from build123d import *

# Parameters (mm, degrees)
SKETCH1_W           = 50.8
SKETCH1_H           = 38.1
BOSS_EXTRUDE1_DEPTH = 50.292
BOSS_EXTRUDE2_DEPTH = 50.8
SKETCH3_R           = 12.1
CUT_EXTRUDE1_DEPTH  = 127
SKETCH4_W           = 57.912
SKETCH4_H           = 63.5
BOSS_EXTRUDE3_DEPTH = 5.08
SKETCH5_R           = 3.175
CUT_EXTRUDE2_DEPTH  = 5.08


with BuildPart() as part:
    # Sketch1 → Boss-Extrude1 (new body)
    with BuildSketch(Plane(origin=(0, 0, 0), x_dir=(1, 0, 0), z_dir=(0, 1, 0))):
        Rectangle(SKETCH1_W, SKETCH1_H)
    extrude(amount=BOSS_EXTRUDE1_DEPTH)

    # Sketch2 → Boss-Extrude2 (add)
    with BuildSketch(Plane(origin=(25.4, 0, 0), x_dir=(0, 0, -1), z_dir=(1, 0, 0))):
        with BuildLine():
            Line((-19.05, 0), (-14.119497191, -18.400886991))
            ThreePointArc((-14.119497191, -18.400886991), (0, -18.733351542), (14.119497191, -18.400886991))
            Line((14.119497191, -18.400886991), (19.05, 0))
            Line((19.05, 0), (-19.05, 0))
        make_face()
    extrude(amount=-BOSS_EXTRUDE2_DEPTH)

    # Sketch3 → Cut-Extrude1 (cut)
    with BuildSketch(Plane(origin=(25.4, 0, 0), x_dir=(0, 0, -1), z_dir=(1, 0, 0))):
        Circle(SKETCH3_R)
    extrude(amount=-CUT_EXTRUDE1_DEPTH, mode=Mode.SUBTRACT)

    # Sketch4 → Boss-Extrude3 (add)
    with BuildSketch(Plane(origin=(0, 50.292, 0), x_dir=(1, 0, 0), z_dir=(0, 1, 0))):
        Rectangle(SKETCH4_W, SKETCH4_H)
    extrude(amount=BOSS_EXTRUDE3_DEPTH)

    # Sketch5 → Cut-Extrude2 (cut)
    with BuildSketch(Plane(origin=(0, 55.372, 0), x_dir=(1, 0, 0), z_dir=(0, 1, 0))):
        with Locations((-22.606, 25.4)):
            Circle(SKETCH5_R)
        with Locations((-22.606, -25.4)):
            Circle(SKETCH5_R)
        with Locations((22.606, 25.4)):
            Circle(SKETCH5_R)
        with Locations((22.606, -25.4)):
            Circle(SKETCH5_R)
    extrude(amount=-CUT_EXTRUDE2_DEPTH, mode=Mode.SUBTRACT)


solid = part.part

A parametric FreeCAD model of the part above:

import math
import FreeCAD as App
import Part
import Sketcher

V = App.Vector
Q = App.Units.Quantity


def add_polygon(sketch, points):
    """Adds a closed chain of lines whose ends are joined by coincident constraints."""
    first, n = sketch.GeometryCount, len(points)
    for a, b in zip(points, points[1:] + points[:1]):
        sketch.addGeometry(Part.LineSegment(App.Vector(*a, 0), App.Vector(*b, 0)), False)
    for i in range(n):
        sketch.addConstraint(Sketcher.Constraint("Coincident", first + i, 2, first + (i + 1) % n, 1))

doc = App.newDocument("Part")
body = doc.addObject("PartDesign::Body", "Body")

# Sketch on XZ plane
sketch1 = body.newObject("Sketcher::SketchObject", "Sketch")
sketch1.AttachmentSupport = (doc.getObject("XZ_Plane"), [""])
sketch1.MapMode = "FlatFace"
add_polygon(sketch1, [(-25, -19), (-25, 19), (25, 19), (25, -19)])  # lines 0-3
sketch1.addConstraint([
    Sketcher.Constraint("Vertical", 0),
    Sketcher.Constraint("Horizontal", 1),
    Sketcher.Constraint("Vertical", 2),
    Sketcher.Constraint("Horizontal", 3),
    Sketcher.Constraint("Symmetric", 0, 2, 2, 2, -1, 1),
    Sketcher.Constraint("DistanceX", 1, 1, 1, 2, Q("2 in")),
    Sketcher.Constraint("DistanceY", 0, 1, 0, 2, Q("1.5 in")),
])
pad1 = body.newObject("PartDesign::Pad", "Pad")
pad1.Profile = sketch1
pad1.Length = Q("1.98 in")
pad1.Reversed = True

# Sketch on YZ plane
sketch2 = body.newObject("Sketcher::SketchObject", "Sketch001")
sketch2.AttachmentSupport = (doc.getObject("YZ_Plane"), [""])
sketch2.MapMode = "FlatFace"
sketch2.AttachmentOffset = App.Placement(V(0, 0, 1 * 25.4), App.Rotation())
sketch2.addGeometry([
    Part.LineSegment(V(0, 19, 0), V(-18, 14, 0)),
    Part.ArcOfCircle(Part.Circle(V(281, 0, 0), V(0, 0, 1), 300), math.radians(177.3), math.radians(182.7)),
    Part.LineSegment(V(-18, -14, 0), V(0, -19, 0)),
    Part.LineSegment(V(0, -19, 0), V(0, 19, 0)),
], False)
sketch2.addConstraint([
    Sketcher.Constraint("Coincident", 0, 2, 1, 1),
    Sketcher.Constraint("Coincident", 1, 2, 2, 1),
    Sketcher.Constraint("Coincident", 2, 2, 3, 1),
    Sketcher.Constraint("Coincident", 3, 2, 0, 1),
    Sketcher.Constraint("Vertical", 3),
    Sketcher.Constraint("Symmetric", 2, 2, 3, 2, -1, 1),
    Sketcher.Constraint("Symmetric", 0, 2, 1, 2, -1),
    Sketcher.Constraint("DistanceY", 3, 1, 3, 2, Q("1.5 in")),
    Sketcher.Constraint("Angle", 0, Q("-165 deg")),
    Sketcher.Constraint("Distance", 0, Q("0.75 in")),
    Sketcher.Constraint("Radius", 1, Q("299.987973 mm")),
])
pad2 = body.newObject("PartDesign::Pad", "Pad001")
pad2.Profile = sketch2
pad2.Length = Q("2 in")
pad2.Reversed = True

# Sketch on YZ plane
sketch3 = body.newObject("Sketcher::SketchObject", "Sketch002")
sketch3.AttachmentSupport = (doc.getObject("YZ_Plane"), [""])
sketch3.MapMode = "FlatFace"
sketch3.AttachmentOffset = App.Placement(V(0, 0, 1 * 25.4), App.Rotation())
sketch3.addGeometry(Part.Circle(V(0, 0, 0), V(0, 0, 1), 12), False)
sketch3.addConstraint([
    Sketcher.Constraint("Coincident", 0, 3, -1, 1),
    Sketcher.Constraint("Diameter", 0, Q("24.2 mm")),
])
pocket1 = body.newObject("PartDesign::Pocket", "Pocket")
pocket1.Profile = sketch3
pocket1.Length = Q("5 in")

# Sketch on XZ plane
sketch4 = body.newObject("Sketcher::SketchObject", "Sketch003")
sketch4.AttachmentSupport = (doc.getObject("XZ_Plane"), [""])
sketch4.MapMode = "FlatFace"
sketch4.AttachmentOffset = App.Placement(V(0, 0, -1.98 * 25.4), App.Rotation())
add_polygon(sketch4, [(-29, -32), (-29, 32), (29, 32), (29, -32)])  # lines 0-3
sketch4.addConstraint([
    Sketcher.Constraint("Vertical", 0),
    Sketcher.Constraint("Horizontal", 1),
    Sketcher.Constraint("Vertical", 2),
    Sketcher.Constraint("Horizontal", 3),
    Sketcher.Constraint("Symmetric", 0, 2, 2, 2, -1, 1),
    Sketcher.Constraint("DistanceY", 0, 1, 0, 2, Q("2.5 in")),
    Sketcher.Constraint("DistanceX", 1, 1, 1, 2, Q("2.28 in")),
])
pad3 = body.newObject("PartDesign::Pad", "Pad002")
pad3.Profile = sketch4
pad3.Length = Q("0.2 in")
pad3.Reversed = True

# Sketch on XZ plane
sketch5 = body.newObject("Sketcher::SketchObject", "Sketch004")
sketch5.AttachmentSupport = (doc.getObject("XZ_Plane"), [""])
sketch5.MapMode = "FlatFace"
sketch5.AttachmentOffset = App.Placement(V(0, 0, -2.18 * 25.4), App.Rotation())
sketch5.addGeometry([
    Part.Circle(V(-22.6, -25.4, 0), V(0, 0, 1), 3.2),
    Part.Circle(V(-22.6, 25.4, 0), V(0, 0, 1), 3.2),
    Part.Circle(V(22.6, -25.4, 0), V(0, 0, 1), 3.2),
    Part.Circle(V(22.6, 25.4, 0), V(0, 0, 1), 3.2),
], False)
sketch5.addConstraint([
    Sketcher.Constraint("Equal", 0, 1),
    Sketcher.Constraint("Equal", 1, 2),
    Sketcher.Constraint("Equal", 2, 3),
    Sketcher.Constraint("Symmetric", 1, 3, 2, 3, -1, 1),
    Sketcher.Constraint("Symmetric", 0, 3, 3, 3, -1, 1),
    Sketcher.Constraint("Symmetric", 0, 3, 2, 3, -2),
    Sketcher.Constraint("Diameter", 0, Q("0.25 in")),
    Sketcher.Constraint("DistanceY", 0, 3, -1, 1, Q("1 in")),
    Sketcher.Constraint("DistanceX", 0, 3, -1, 1, Q("0.89 in")),
])
pocket2 = body.newObject("PartDesign::Pocket", "Pocket001")
pocket2.Profile = sketch5
pocket2.Length = Q("0.2 in")
pocket2.Reversed = True

doc.recompute()
